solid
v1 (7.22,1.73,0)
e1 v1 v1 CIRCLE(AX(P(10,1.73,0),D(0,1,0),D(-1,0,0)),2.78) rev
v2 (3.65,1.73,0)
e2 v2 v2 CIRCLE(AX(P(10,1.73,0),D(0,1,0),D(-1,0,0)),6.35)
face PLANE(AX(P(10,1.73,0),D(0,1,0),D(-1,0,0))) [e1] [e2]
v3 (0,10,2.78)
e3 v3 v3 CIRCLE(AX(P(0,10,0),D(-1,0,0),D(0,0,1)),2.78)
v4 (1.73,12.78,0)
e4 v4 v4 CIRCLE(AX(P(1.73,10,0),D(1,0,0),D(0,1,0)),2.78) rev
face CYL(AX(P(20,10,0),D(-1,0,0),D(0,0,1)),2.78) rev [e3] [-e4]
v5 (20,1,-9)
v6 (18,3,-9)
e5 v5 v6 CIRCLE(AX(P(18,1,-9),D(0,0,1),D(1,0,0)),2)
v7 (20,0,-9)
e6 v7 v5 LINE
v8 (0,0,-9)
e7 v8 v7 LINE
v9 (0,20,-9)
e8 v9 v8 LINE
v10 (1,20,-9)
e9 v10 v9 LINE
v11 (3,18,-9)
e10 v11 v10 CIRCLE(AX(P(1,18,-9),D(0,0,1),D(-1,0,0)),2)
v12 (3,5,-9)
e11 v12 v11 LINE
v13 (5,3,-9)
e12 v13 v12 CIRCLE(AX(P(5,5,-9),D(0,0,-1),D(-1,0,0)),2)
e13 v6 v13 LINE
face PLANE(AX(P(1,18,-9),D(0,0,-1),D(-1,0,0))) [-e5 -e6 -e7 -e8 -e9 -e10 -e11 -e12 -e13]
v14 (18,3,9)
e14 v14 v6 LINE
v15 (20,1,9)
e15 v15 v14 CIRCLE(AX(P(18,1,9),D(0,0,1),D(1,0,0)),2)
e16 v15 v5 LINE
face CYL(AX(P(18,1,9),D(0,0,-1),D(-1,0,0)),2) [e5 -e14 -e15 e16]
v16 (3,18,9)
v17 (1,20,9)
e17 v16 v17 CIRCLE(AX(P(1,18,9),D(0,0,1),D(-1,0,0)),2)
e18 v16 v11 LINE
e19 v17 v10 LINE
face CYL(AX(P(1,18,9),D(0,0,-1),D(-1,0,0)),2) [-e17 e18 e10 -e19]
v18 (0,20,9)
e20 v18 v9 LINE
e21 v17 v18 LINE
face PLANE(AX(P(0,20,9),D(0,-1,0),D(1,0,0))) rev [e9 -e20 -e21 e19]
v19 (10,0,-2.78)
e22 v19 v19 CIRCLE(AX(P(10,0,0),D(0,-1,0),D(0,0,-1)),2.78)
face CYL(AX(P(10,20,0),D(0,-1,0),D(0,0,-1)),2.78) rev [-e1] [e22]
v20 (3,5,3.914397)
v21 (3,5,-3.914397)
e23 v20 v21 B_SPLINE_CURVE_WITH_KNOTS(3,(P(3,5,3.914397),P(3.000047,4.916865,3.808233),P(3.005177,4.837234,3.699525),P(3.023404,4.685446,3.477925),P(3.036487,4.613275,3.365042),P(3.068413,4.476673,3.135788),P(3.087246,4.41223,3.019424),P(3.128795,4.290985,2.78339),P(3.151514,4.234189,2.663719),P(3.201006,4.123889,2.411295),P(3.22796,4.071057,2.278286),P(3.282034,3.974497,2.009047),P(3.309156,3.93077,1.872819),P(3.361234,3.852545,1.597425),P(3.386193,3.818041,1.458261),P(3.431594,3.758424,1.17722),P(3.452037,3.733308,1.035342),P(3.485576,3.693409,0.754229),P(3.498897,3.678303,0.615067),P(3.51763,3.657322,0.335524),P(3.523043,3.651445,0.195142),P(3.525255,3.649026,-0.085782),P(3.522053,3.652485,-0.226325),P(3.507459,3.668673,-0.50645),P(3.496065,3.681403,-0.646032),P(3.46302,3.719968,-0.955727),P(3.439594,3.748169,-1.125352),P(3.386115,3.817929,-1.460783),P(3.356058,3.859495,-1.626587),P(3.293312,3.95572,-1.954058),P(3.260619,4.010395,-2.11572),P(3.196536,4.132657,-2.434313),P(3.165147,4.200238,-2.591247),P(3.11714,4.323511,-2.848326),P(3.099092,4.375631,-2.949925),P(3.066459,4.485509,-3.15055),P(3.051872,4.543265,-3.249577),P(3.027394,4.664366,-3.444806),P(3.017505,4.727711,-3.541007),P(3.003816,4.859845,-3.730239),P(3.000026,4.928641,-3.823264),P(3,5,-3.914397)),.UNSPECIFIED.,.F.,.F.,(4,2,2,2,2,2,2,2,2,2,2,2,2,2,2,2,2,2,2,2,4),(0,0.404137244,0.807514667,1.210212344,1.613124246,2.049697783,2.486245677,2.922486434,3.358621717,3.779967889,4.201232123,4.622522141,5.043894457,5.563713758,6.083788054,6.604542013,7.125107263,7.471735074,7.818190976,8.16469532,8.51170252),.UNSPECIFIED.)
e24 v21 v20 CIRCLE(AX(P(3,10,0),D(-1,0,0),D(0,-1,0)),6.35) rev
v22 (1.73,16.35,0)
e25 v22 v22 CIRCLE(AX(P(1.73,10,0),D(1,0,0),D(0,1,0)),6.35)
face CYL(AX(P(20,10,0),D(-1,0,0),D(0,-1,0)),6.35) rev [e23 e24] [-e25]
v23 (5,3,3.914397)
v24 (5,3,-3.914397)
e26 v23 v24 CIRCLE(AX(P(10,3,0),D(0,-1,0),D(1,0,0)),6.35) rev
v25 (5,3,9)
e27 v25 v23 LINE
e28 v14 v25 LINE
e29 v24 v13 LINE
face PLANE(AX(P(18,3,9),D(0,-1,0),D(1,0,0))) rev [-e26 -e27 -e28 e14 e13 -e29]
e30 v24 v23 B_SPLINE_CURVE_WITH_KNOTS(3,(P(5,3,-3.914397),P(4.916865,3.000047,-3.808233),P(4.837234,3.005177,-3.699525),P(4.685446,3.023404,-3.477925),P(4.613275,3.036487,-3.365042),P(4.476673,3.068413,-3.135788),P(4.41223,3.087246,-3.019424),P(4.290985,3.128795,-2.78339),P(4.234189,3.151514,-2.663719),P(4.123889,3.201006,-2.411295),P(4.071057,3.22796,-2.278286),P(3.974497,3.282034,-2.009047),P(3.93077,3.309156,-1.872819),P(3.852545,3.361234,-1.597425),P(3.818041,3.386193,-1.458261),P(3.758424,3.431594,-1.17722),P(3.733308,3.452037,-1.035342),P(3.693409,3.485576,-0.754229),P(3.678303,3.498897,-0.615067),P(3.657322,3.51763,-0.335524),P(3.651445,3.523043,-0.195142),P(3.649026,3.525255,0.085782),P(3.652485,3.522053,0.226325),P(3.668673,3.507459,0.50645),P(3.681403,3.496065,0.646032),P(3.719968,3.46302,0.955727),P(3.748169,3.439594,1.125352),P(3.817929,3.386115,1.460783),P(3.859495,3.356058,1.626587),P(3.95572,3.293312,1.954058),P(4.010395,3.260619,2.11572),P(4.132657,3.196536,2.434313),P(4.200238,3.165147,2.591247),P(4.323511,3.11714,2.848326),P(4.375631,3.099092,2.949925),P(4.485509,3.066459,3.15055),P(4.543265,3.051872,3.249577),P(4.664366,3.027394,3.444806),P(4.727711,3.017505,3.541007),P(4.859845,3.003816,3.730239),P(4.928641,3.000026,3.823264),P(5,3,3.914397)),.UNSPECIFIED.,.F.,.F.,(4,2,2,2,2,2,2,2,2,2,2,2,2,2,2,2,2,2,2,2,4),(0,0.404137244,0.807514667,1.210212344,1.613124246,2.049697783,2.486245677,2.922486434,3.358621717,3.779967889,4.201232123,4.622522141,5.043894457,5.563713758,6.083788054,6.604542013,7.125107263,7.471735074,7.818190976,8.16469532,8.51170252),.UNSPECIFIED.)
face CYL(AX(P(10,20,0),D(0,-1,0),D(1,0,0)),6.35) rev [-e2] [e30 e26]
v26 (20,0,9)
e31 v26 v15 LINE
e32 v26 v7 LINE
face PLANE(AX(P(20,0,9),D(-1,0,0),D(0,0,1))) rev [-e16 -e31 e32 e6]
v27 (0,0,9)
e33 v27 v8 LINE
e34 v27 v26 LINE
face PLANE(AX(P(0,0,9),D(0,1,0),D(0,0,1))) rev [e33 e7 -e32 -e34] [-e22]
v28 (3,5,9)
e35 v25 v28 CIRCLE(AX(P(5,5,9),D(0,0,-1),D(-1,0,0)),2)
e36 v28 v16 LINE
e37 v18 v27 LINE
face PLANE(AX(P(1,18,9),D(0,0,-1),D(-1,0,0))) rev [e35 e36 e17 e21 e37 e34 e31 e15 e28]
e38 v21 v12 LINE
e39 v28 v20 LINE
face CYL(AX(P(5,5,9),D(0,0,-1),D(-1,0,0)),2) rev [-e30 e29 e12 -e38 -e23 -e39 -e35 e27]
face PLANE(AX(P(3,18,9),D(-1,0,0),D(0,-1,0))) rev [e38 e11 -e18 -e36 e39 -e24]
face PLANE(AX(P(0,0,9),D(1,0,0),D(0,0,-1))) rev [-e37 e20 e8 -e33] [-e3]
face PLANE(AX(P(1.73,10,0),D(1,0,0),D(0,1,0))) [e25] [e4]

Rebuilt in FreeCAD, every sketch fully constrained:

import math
import FreeCAD as App
import Part
import Sketcher

V = App.Vector
Q = App.Units.Quantity

doc = App.newDocument("Part")
body = doc.addObject("PartDesign::Body", "Body")

# Sketch on XY plane
sketch1 = doc.addObject("Sketcher::SketchObject", "Sketch")
body.addObject(sketch1)
sketch1.AttachmentSupport = (doc.XY_Plane, [""])
sketch1.MapMode = "FlatFace"
sketch1.addGeometry([
    Part.LineSegment(V(0, 0, 0), V(20, 0, 0)),  # 0
    Part.LineSegment(V(20, 0, 0), V(20, 1, 0)),  # 1
    Part.ArcOfCircle(Part.Circle(V(18, 1, 0), V(0, 0, 1), 2), math.radians(0), math.radians(90)),  # 2
    Part.LineSegment(V(18, 3, 0), V(5, 3, 0)),  # 3
    Part.ArcOfCircle(Part.Circle(V(5, 5, 0), V(0, 0, 1), 2), math.radians(-180), math.radians(-90)),  # 4
    Part.LineSegment(V(3, 5, 0), V(3, 18, 0)),  # 5
    Part.ArcOfCircle(Part.Circle(V(1, 18, 0), V(0, 0, 1), 2), math.radians(0), math.radians(90)),  # 6
    Part.LineSegment(V(1, 20, 0), V(0, 20, 0)),  # 7
    Part.LineSegment(V(0, 20, 0), V(0, 0, 0)),  # 8
], False)
sketch1.addConstraint([
    Sketcher.Constraint("Coincident", 0, 2, 1, 1),
    Sketcher.Constraint("Tangent", 1, 2, 2, 1),
    Sketcher.Constraint("Tangent", 2, 2, 3, 1),
    Sketcher.Constraint("Tangent", 3, 2, 4, 2),
    Sketcher.Constraint("Tangent", 4, 1, 5, 1),
    Sketcher.Constraint("Tangent", 5, 2, 6, 1),
    Sketcher.Constraint("Tangent", 6, 2, 7, 1),
    Sketcher.Constraint("Coincident", 7, 2, 8, 1),
    Sketcher.Constraint("Coincident", 8, 2, 0, 1),
    Sketcher.Constraint("Horizontal", 0),
    Sketcher.Constraint("Vertical", 1),
    Sketcher.Constraint("Horizontal", 3),
    Sketcher.Constraint("Vertical", 5),
    Sketcher.Constraint("Horizontal", 7),
    Sketcher.Constraint("Vertical", 8),
    Sketcher.Constraint("Coincident", 8, 2, -1, 1),
    Sketcher.Constraint("Equal", 2, 4),
    Sketcher.Constraint("Equal", 4, 6),
    Sketcher.Constraint("Equal", 7, 1),
    Sketcher.Constraint("Equal", 3, 5),
    Sketcher.Constraint("Radius", 2, Q("2 mm")),
    Sketcher.Constraint("DistanceX", 0, 1, 0, 2, Q("20 mm")),
    Sketcher.Constraint("DistanceX", 3, 2, 3, 1, Q("13 mm")),
])
pad1 = doc.addObject("PartDesign::Pad", "Pad")
body.addObject(pad1)
pad1.Profile = sketch1
pad1.Length = 18
pad1.Midplane = True

# Sketch on XZ plane
sketch2 = doc.addObject("Sketcher::SketchObject", "Sketch001")
body.addObject(sketch2)
sketch2.AttachmentSupport = (doc.XZ_Plane, [""])
sketch2.MapMode = "FlatFace"
sketch2.addGeometry(Part.Circle(V(10, 0, 0), V(0, 0, 1), 2.78), False)
sketch2.addConstraint([
    Sketcher.Constraint("PointOnObject", 0, 3, -1),
    Sketcher.Constraint("Diameter", 0, Q("5.56 mm")),
    Sketcher.Constraint("DistanceX", -1, 1, 0, 3, Q("10 mm")),
])
pocket1 = doc.addObject("PartDesign::Pocket", "Pocket")
body.addObject(pocket1)
pocket1.Profile = sketch2
pocket1.Type = "ThroughAll"

# Sketch on YZ plane
sketch3 = doc.addObject("Sketcher::SketchObject", "Sketch002")
body.addObject(sketch3)
sketch3.AttachmentSupport = (doc.YZ_Plane, [""])
sketch3.MapMode = "FlatFace"
sketch3.addGeometry(Part.Circle(V(10, 0, 0), V(0, 0, 1), 2.78), False)
sketch3.addConstraint([
    Sketcher.Constraint("PointOnObject", 0, 3, -1),
    Sketcher.Constraint("Diameter", 0, Q("5.56 mm")),
    Sketcher.Constraint("DistanceX", -1, 1, 0, 3, Q("10 mm")),
])
pocket2 = doc.addObject("PartDesign::Pocket", "Pocket001")
body.addObject(pocket2)
pocket2.Profile = sketch3
pocket2.Type = "ThroughAll"
pocket2.Reversed = True

# Sketch on YZ plane
sketch4 = doc.addObject("Sketcher::SketchObject", "Sketch003")
body.addObject(sketch4)
sketch4.AttachmentSupport = (doc.YZ_Plane, [""])
sketch4.MapMode = "FlatFace"
sketch4.AttachmentOffset = App.Placement(V(0, 0, 3), App.Rotation())
sketch4.addGeometry(Part.Circle(V(10, 0, 0), V(0, 0, 1), 6.35), False)
sketch4.addConstraint([
    Sketcher.Constraint("PointOnObject", 0, 3, -1),
    Sketcher.Constraint("Diameter", 0, Q("12.7 mm")),
    Sketcher.Constraint("DistanceX", -1, 1, 0, 3, Q("10 mm")),
])
pocket3 = doc.addObject("PartDesign::Pocket", "Pocket002")
body.addObject(pocket3)
pocket3.Profile = sketch4
pocket3.Type = "TwoLengths"
pocket3.Length = 18
pocket3.Length2 = 1.27
pocket3.Reversed = True

# Sketch on XZ plane
sketch5 = doc.addObject("Sketcher::SketchObject", "Sketch004")
body.addObject(sketch5)
sketch5.AttachmentSupport = (doc.XZ_Plane, [""])
sketch5.MapMode = "FlatFace"
sketch5.AttachmentOffset = App.Placement(V(0, 0, -3), App.Rotation())
sketch5.addGeometry(Part.Circle(V(10, 0, 0), V(0, 0, 1), 6.35), False)
sketch5.addConstraint([
    Sketcher.Constraint("PointOnObject", 0, 3, -1),
    Sketcher.Constraint("Diameter", 0, Q("12.7 mm")),
    Sketcher.Constraint("DistanceX", -1, 1, 0, 3, Q("10 mm")),
])
pocket4 = doc.addObject("PartDesign::Pocket", "Pocket003")
body.addObject(pocket4)
pocket4.Profile = sketch5
pocket4.Type = "TwoLengths"
pocket4.Length = 18
pocket4.Length2 = 1.27

doc.recompute()
